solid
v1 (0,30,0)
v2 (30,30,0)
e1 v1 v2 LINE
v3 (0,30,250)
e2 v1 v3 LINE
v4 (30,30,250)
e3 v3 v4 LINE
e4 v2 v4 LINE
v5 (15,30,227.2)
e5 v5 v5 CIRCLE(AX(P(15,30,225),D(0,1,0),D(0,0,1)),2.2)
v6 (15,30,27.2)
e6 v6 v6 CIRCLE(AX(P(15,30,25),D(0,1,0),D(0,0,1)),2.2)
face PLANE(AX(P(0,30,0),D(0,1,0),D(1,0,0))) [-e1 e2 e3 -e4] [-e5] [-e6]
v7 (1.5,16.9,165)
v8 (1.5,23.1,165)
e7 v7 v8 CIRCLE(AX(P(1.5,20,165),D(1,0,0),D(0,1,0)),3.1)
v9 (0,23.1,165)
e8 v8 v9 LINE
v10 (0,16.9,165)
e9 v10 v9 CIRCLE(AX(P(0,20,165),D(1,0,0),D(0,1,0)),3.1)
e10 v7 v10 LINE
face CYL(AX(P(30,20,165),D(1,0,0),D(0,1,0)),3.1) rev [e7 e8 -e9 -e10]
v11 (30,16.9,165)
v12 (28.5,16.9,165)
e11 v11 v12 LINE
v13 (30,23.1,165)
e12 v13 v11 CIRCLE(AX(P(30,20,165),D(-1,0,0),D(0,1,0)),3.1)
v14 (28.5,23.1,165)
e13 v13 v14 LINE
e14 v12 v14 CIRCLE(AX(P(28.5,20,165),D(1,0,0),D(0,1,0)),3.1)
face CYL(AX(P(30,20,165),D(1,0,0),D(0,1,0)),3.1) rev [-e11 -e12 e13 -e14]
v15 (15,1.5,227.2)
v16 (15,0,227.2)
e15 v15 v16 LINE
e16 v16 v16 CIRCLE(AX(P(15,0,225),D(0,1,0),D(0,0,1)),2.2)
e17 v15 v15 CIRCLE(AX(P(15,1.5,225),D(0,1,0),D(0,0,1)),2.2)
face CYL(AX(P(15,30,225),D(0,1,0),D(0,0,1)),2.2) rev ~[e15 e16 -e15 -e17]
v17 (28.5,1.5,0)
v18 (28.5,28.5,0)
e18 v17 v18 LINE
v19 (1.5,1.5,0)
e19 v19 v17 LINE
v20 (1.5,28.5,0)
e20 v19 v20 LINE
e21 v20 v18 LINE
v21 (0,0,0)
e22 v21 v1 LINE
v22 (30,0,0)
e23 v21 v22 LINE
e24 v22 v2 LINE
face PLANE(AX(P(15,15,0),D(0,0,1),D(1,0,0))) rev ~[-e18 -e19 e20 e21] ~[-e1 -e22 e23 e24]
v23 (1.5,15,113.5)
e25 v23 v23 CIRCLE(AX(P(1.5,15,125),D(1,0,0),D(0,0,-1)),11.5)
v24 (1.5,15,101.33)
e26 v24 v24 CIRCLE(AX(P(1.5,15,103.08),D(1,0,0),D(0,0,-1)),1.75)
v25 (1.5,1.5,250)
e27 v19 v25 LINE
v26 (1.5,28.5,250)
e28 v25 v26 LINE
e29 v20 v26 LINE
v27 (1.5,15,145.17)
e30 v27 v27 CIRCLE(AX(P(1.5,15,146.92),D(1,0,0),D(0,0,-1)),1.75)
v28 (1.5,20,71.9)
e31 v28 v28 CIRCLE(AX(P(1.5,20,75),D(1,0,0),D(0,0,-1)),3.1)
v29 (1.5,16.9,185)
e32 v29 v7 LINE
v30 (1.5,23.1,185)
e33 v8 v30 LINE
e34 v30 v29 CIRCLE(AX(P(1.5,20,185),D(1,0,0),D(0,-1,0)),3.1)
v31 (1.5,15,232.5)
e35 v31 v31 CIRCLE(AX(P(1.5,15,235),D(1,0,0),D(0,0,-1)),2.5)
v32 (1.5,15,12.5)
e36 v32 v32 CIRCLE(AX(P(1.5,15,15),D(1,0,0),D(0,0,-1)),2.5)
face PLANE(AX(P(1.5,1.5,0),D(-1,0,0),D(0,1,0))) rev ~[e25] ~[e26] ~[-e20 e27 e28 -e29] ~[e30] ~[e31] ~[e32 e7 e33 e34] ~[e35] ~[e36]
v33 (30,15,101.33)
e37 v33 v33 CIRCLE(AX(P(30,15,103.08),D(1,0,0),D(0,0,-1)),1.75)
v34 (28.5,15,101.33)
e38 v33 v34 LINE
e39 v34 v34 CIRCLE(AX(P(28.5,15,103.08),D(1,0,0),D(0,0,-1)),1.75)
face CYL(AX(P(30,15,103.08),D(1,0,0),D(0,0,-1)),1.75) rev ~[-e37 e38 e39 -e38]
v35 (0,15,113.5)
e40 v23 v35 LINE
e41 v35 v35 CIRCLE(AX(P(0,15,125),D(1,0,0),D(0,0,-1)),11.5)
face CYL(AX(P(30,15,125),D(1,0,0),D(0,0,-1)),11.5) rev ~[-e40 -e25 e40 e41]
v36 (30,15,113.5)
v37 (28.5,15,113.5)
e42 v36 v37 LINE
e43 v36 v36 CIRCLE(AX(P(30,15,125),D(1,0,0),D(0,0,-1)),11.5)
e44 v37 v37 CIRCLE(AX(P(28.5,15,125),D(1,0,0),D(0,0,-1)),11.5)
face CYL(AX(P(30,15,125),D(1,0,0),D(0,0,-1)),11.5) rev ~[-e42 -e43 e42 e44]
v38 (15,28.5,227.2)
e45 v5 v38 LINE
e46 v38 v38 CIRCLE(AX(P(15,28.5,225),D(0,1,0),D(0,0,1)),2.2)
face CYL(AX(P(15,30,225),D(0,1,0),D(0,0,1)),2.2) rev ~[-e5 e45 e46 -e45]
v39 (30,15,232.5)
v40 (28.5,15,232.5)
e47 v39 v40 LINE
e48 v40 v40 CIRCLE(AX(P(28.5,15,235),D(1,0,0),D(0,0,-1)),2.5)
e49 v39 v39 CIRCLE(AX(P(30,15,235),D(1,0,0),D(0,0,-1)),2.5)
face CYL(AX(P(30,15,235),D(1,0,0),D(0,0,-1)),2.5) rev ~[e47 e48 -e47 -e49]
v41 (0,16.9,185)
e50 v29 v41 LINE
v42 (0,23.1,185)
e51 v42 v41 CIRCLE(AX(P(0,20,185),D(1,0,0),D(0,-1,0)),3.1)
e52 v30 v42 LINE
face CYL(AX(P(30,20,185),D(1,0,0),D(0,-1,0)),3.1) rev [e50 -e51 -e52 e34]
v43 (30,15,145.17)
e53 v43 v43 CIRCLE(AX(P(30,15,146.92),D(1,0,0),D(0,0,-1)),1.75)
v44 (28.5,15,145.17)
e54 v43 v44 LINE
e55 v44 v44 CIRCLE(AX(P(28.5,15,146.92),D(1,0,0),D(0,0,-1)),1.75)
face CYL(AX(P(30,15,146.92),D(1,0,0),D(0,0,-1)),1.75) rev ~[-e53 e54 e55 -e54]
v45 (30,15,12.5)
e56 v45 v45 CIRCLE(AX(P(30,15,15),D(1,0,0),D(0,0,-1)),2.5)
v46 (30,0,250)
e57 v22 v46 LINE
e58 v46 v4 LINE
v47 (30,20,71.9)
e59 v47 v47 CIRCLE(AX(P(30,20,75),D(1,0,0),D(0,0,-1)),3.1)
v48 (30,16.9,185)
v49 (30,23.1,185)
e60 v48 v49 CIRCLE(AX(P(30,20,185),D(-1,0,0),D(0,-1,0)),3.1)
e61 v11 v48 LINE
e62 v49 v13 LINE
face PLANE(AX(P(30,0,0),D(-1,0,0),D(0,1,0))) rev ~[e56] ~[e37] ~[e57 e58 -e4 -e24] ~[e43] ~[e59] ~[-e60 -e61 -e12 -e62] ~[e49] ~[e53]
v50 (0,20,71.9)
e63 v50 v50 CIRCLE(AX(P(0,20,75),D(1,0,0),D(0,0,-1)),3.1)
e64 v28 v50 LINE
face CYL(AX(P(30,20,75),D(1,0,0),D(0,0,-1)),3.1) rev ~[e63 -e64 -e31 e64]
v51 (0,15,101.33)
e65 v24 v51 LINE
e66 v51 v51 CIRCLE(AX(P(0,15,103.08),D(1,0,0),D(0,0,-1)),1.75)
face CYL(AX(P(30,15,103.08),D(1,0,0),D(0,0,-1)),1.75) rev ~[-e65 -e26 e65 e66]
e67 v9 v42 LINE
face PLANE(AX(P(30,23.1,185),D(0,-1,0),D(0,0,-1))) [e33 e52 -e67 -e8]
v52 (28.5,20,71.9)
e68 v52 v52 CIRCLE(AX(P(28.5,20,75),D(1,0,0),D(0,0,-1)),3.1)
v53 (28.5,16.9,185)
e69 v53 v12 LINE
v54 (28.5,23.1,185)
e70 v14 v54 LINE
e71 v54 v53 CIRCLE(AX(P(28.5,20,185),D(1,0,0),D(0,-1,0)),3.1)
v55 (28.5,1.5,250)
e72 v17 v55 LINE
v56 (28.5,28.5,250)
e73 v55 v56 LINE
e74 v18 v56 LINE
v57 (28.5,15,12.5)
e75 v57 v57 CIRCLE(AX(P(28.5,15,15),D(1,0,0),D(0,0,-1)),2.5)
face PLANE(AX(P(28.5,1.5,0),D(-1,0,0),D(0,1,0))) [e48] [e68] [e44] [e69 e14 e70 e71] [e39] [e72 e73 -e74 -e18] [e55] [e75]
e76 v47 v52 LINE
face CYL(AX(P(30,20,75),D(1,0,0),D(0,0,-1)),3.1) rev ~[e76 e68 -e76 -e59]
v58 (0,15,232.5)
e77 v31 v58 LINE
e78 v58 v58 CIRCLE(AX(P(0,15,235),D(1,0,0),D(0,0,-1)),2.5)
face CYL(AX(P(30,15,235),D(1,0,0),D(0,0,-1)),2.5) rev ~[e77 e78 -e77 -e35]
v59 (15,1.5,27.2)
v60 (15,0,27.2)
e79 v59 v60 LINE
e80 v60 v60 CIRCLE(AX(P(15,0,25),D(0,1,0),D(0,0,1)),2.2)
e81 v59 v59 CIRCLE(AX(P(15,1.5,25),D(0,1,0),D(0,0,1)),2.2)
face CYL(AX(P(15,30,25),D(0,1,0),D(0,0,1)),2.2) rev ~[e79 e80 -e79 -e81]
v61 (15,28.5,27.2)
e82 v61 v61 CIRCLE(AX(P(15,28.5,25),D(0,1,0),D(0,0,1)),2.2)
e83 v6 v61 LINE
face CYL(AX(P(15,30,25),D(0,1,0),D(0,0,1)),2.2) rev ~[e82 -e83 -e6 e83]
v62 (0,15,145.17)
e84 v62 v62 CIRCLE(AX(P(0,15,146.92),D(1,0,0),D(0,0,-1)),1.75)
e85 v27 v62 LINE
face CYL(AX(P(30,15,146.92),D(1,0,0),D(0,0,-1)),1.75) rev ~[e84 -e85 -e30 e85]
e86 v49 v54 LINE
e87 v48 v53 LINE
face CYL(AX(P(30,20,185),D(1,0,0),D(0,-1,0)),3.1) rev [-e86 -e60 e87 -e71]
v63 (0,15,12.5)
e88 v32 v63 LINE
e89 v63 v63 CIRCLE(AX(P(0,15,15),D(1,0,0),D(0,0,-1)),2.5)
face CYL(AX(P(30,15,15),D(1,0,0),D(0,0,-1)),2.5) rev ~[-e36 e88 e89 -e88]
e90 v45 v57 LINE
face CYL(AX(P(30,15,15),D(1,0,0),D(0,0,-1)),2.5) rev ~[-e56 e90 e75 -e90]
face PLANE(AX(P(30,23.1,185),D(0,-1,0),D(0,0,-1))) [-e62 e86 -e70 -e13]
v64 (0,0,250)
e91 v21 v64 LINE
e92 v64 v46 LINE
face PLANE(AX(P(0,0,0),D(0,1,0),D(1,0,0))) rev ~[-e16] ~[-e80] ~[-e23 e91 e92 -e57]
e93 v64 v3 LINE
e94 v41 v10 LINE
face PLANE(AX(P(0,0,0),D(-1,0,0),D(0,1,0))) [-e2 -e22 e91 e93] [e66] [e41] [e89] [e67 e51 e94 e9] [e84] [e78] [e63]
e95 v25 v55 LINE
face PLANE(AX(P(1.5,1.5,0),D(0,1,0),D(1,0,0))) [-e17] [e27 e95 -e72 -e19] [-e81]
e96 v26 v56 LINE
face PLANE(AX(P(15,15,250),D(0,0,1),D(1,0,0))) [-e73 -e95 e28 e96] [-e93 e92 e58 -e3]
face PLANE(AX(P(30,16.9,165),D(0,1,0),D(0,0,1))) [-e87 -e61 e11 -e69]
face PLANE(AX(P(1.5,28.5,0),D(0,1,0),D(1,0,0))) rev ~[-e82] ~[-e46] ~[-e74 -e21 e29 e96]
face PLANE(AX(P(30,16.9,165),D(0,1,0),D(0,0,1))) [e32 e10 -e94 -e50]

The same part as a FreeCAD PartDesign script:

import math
import FreeCAD as App
import Part
import Sketcher
from FreeCAD import Vector

doc = App.newDocument("Part")
params = doc.addObject("Spreadsheet::Sheet", "Params")
for row, (alias, value) in enumerate([
    ("sketch1_width", "30 mm"),
    ("sketch1_width2", "27 mm"),
    ("pad1_length", "250 mm"),
    ("sketch2_diameter", "5 mm"),
    ("sketch2_diameter2", "23 mm"),
    ("sketch2_diameter3", "6.2 mm"),
    ("sketch2_diameter4", "3.5 mm"),
    ("sketch2_height", "20 mm"),
    ("sketch3_diameter", "4.4 mm"),
], start=1):
    params.set(f"A{row}", alias)
    params.set(f"B{row}", "=" + value)
    params.setAlias(f"B{row}", alias)

body = doc.addObject("PartDesign::Body", "Body")

sketch1 = body.newObject("Sketcher::SketchObject", "Sketch")
sketch1.AttachmentSupport = (doc.getObject("XY_Plane"), [""])
sketch1.MapMode = "FlatFace"
sketch1.addGeometry([
    Part.LineSegment(Vector(0, 30, 0), Vector(0, 0, 0)),
    Part.LineSegment(Vector(0, 0, 0), Vector(30, 0, 0)),
    Part.LineSegment(Vector(30, 0, 0), Vector(30, 30, 0)),
    Part.LineSegment(Vector(30, 30, 0), Vector(0, 30, 0)),
    Part.LineSegment(Vector(28.5, 1.5, 0), Vector(1.5, 1.5, 0)),
    Part.LineSegment(Vector(1.5, 1.5, 0), Vector(1.5, 28.5, 0)),
    Part.LineSegment(Vector(1.5, 28.5, 0), Vector(28.5, 28.5, 0)),
    Part.LineSegment(Vector(28.5, 28.5, 0), Vector(28.5, 1.5, 0)),
], False)
sketch1.addConstraint([
    Sketcher.Constraint("Coincident", 0, 2, 1, 1),
    Sketcher.Constraint("Coincident", 1, 2, 2, 1),
    Sketcher.Constraint("Coincident", 2, 2, 3, 1),
    Sketcher.Constraint("Coincident", 3, 2, 0, 1),
    Sketcher.Constraint("Coincident", 4, 2, 5, 1),
    Sketcher.Constraint("Coincident", 5, 2, 6, 1),
    Sketcher.Constraint("Coincident", 6, 2, 7, 1),
    Sketcher.Constraint("Coincident", 7, 2, 4, 1),
    Sketcher.Constraint("Vertical", 0),
    Sketcher.Constraint("Horizontal", 1),
    Sketcher.Constraint("Vertical", 2),
    Sketcher.Constraint("Horizontal", 3),
    Sketcher.Constraint("Horizontal", 4),
    Sketcher.Constraint("Vertical", 5),
    Sketcher.Constraint("Horizontal", 6),
    Sketcher.Constraint("Vertical", 7),
    Sketcher.Constraint("Coincident", 0, 2, -1, 1),
    Sketcher.Constraint("Equal", 3, 0),
    Sketcher.Constraint("Equal", 6, 5),
    Sketcher.Constraint("DistanceX", 1, 1, 1, 2, 30.0),
    Sketcher.Constraint("DistanceX", 4, 2, 4, 1, 27.0),
    Sketcher.Constraint("DistanceX", -1, 1, 4, 2, 1.5),
    Sketcher.Constraint("DistanceY", -1, 1, 4, 2, 1.5),
])
sketch1.setExpression("Constraints[19]", "Params.sketch1_width")
sketch1.setExpression("Constraints[20]", "Params.sketch1_width2")
pad1 = body.newObject("PartDesign::Pad", "Pad")
pad1.Profile = sketch1
pad1.setExpression("Length", "Params.pad1_length")

sketch2 = body.newObject("Sketcher::SketchObject", "Sketch001")
sketch2.AttachmentSupport = (doc.getObject("YZ_Plane"), [""])
sketch2.MapMode = "FlatFace"
sketch2.AttachmentOffset = App.Placement(Vector(0, 0, 30), App.Rotation())
sketch2.addGeometry([
    Part.Circle(Vector(20, 75, 0), Vector(0, 0, 1), 3.1),
    Part.Circle(Vector(15, 15, 0), Vector(0, 0, 1), 2.5),
    Part.Circle(Vector(15, 235, 0), Vector(0, 0, 1), 2.5),
    Part.Circle(Vector(15, 125, 0), Vector(0, 0, 1), 11.5),
    Part.Circle(Vector(15, 146.92, 0), Vector(0, 0, 1), 1.75),
    Part.Circle(Vector(15, 103.08, 0), Vector(0, 0, 1), 1.75),
    Part.LineSegment(Vector(23.1, 165, 0), Vector(23.1, 185, 0)),
    Part.ArcOfCircle(Part.Circle(Vector(20, 185, 0), Vector(0, 0, 1), 3.1), math.radians(0), math.radians(180)),
    Part.LineSegment(Vector(16.9, 185, 0), Vector(16.9, 165, 0)),
    Part.ArcOfCircle(Part.Circle(Vector(20, 165, 0), Vector(0, 0, 1), 3.1), math.radians(180), math.radians(360)),
], False)
sketch2.addConstraint([
    Sketcher.Constraint("Tangent", 6, 2, 7, 1),
    Sketcher.Constraint("Tangent", 7, 2, 8, 1),
    Sketcher.Constraint("Tangent", 8, 2, 9, 1),
    Sketcher.Constraint("Tangent", 9, 2, 6, 1),
    Sketcher.Constraint("Vertical", 6),
    Sketcher.Constraint("Vertical", 8),
    Sketcher.Constraint("Equal", 1, 2),
    Sketcher.Constraint("Equal", 4, 5),
    Sketcher.Constraint("Equal", 0, 7),
    Sketcher.Constraint("Vertical", 1, 3, 2, 3),
    Sketcher.Constraint("Vertical", 2, 3, 3, 3),
    Sketcher.Constraint("Vertical", 3, 3, 4, 3),
    Sketcher.Constraint("Vertical", 4, 3, 5, 3),
    Sketcher.Constraint("Vertical", 0, 3, 7, 3),
    Sketcher.Constraint("Diameter", 1, 5.0),
    Sketcher.Constraint("Diameter", 3, 23.0),
    Sketcher.Constraint("Diameter", 0, 6.2),
    Sketcher.Constraint("Diameter", 4, 3.5),
    Sketcher.Constraint("DistanceY", 6, 1, 6, 2, 20.0),
    Sketcher.Constraint("DistanceX", -1, 1, 0, 3, 20.0),
    Sketcher.Constraint("DistanceY", -1, 1, 0, 3, 75.0),
    Sketcher.Constraint("DistanceX", -1, 1, 1, 3, 15.0),
    Sketcher.Constraint("DistanceY", -1, 1, 1, 3, 15.0),
    Sketcher.Constraint("DistanceY", -1, 1, 2, 3, 235.0),
    Sketcher.Constraint("DistanceY", -1, 1, 3, 3, 125.0),
    Sketcher.Constraint("DistanceY", -1, 1, 7, 3, 185.0),
    Sketcher.Constraint("DistanceY", -1, 1, 4, 3, 146.92),
    Sketcher.Constraint("DistanceY", -1, 1, 5, 3, 103.08),
])
sketch2.setExpression("Constraints[14]", "Params.sketch2_diameter")
sketch2.setExpression("Constraints[15]", "Params.sketch2_diameter2")
sketch2.setExpression("Constraints[16]", "Params.sketch2_diameter3")
sketch2.setExpression("Constraints[17]", "Params.sketch2_diameter4")
sketch2.setExpression("Constraints[18]", "Params.sketch2_height")
pocket1 = body.newObject("PartDesign::Pocket", "Pocket")
pocket1.Profile = sketch2
pocket1.Type = "ThroughAll"

sketch3 = body.newObject("Sketcher::SketchObject", "Sketch002")
sketch3.AttachmentSupport = (doc.getObject("XZ_Plane"), [""])
sketch3.MapMode = "FlatFace"
sketch3.AttachmentOffset = App.Placement(Vector(0, 0, -30), App.Rotation())
sketch3.addGeometry([
    Part.Circle(Vector(15, 25, 0), Vector(0, 0, 1), 2.2),
    Part.Circle(Vector(15, 225, 0), Vector(0, 0, 1), 2.2),
], False)
sketch3.addConstraint([
    Sketcher.Constraint("Equal", 0, 1),
    Sketcher.Constraint("Vertical", 0, 3, 1, 3),
    Sketcher.Constraint("Diameter", 0, 4.4),
    Sketcher.Constraint("DistanceX", -1, 1, 0, 3, 15.0),
    Sketcher.Constraint("DistanceY", -1, 1, 0, 3, 25.0),
    Sketcher.Constraint("DistanceY", -1, 1, 1, 3, 225.0),
])
sketch3.setExpression("Constraints[2]", "Params.sketch3_diameter")
pocket2 = body.newObject("PartDesign::Pocket", "Pocket001")
pocket2.Profile = sketch3
pocket2.Type = "ThroughAll"
pocket2.Reversed = True

doc.recompute()
